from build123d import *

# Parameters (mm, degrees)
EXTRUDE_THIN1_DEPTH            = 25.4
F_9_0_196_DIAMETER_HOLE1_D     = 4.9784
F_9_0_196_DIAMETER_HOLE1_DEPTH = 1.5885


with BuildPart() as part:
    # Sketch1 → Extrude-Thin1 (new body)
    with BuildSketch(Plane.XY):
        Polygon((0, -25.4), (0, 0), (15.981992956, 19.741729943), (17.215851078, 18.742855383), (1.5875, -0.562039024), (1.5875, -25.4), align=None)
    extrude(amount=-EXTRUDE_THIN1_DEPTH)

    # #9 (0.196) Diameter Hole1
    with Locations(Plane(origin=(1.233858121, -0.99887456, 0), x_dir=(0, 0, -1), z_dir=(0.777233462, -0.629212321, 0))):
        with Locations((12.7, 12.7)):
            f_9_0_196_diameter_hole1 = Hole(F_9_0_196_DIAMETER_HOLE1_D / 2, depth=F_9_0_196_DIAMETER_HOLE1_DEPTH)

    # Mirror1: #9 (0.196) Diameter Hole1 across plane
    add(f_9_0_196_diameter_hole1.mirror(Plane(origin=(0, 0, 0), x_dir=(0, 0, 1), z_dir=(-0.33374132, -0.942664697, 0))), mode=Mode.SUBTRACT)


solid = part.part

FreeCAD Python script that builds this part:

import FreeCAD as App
import Part
import Sketcher

V = App.Vector
Q = App.Units.Quantity

doc = App.newDocument("Part")
body = doc.addObject("PartDesign::Body", "Body")

# Sketch on XY plane
sketch1 = body.newObject("Sketcher::SketchObject", "Sketch")
sketch1.AttachmentSupport = (doc.getObject("XY_Plane"), [""])
sketch1.MapMode = "FlatFace"
sketch1.addGeometry(Part.LineSegment(V(0, 0, 0), V(0, -25.4, 0)), False)
sketch1.addGeometry(Part.LineSegment(V(0, -25.4, 0), V(1.5875, -25.4, 0)), False)
sketch1.addGeometry(Part.LineSegment(V(1.5875, -25.4, 0), V(1.5875, -0.562039, 0)), False)
sketch1.addGeometry(Part.LineSegment(V(1.5875, -0.562039, 0), V(17.215851, 18.742855, 0)), False)
sketch1.addGeometry(Part.LineSegment(V(17.215851, 18.742855, 0), V(15.981993, 19.74173, 0)), False)
sketch1.addGeometry(Part.LineSegment(V(15.981993, 19.74173, 0), V(0, 0, 0)), False)
sketch1.addConstraint(Sketcher.Constraint("Coincident", 0, 2, 1, 1))
sketch1.addConstraint(Sketcher.Constraint("Coincident", 1, 2, 2, 1))
sketch1.addConstraint(Sketcher.Constraint("Coincident", 2, 2, 3, 1))
sketch1.addConstraint(Sketcher.Constraint("Coincident", 3, 2, 4, 1))
sketch1.addConstraint(Sketcher.Constraint("Coincident", 4, 2, 5, 1))
sketch1.addConstraint(Sketcher.Constraint("Coincident", 5, 2, 0, 1))
sketch1.addConstraint(Sketcher.Constraint("Vertical", 0))
sketch1.addConstraint(Sketcher.Constraint("Horizontal", 1))
sketch1.addConstraint(Sketcher.Constraint("Vertical", 2))
sketch1.addConstraint(Sketcher.Constraint("Coincident", 5, 2, -1, 1))
sketch1.addConstraint(Sketcher.Constraint("Perpendicular", 3, 4))
sketch1.addConstraint(Sketcher.Constraint("Perpendicular", 4, 5))
sketch1.addConstraint(Sketcher.Constraint("DistanceY", 0, 2, 0, 1, Q("1 in")))
sketch1.addConstraint(Sketcher.Constraint("Distance", 5, Q("1 in")))
sketch1.addConstraint(Sketcher.Constraint("DistanceX", 1, 1, 1, 2, Q("0.0625 in")))
sketch1.addConstraint(Sketcher.Constraint("Distance", 4, Q("0.0625 in")))
sketch1.addConstraint(Sketcher.Constraint("DistanceY", 2, 1, 2, 2, 24.837961))
pad1 = body.newObject("PartDesign::Pad", "Pad")
pad1.Profile = sketch1
pad1.Length = Q("1 in")
pad1.Reversed = True

# Sketch on an angled plane
sketch2 = body.newObject("Sketcher::SketchObject", "Sketch001")
sketch2.Placement = App.Placement(V(1.233858, -0.998875, 0), App.Rotation(V(0, 0, -1), V(0.629212321, 0.777233462, 0), V(0.777233462, -0.629212321, 0), "ZXY"))
sketch2.addGeometry(Part.Circle(V(12.7, 12.7, 0), V(0, 0, 1), 2.4892), False)
sketch2.addConstraint(Sketcher.Constraint("Diameter", 0, Q("0.196 in")))
sketch2.addConstraint(Sketcher.Constraint("DistanceX", -1, 1, 0, 3, Q("0.5 in")))
sketch2.addConstraint(Sketcher.Constraint("DistanceY", -1, 1, 0, 3, Q("0.5 in")))
doc.recompute()
hole = body.newObject("PartDesign::Hole", "Hole")
hole.Profile = sketch2
hole.ThreadType = "None"
hole.Diameter = Q("0.196 in")
hole.DepthType = "Dimension"
hole.Depth = 1.5885
hole.DrillPoint = "Flat"
doc.recompute()

datumplane = body.newObject("PartDesign::Plane", "DatumPlane")
datumplane.Placement = App.Placement(V(0, 0, 0), App.Rotation(V(-0.942664697, 0.33374132, 0), V(0, 0, -1), V(-0.33374132, -0.942664697, 0), "ZXY"))
mirrored = body.newObject("PartDesign::Mirrored", "Mirrored")
mirrored.Originals = [hole]
mirrored.MirrorPlane = (datumplane, [""])
body.Tip = mirrored

doc.recompute()
